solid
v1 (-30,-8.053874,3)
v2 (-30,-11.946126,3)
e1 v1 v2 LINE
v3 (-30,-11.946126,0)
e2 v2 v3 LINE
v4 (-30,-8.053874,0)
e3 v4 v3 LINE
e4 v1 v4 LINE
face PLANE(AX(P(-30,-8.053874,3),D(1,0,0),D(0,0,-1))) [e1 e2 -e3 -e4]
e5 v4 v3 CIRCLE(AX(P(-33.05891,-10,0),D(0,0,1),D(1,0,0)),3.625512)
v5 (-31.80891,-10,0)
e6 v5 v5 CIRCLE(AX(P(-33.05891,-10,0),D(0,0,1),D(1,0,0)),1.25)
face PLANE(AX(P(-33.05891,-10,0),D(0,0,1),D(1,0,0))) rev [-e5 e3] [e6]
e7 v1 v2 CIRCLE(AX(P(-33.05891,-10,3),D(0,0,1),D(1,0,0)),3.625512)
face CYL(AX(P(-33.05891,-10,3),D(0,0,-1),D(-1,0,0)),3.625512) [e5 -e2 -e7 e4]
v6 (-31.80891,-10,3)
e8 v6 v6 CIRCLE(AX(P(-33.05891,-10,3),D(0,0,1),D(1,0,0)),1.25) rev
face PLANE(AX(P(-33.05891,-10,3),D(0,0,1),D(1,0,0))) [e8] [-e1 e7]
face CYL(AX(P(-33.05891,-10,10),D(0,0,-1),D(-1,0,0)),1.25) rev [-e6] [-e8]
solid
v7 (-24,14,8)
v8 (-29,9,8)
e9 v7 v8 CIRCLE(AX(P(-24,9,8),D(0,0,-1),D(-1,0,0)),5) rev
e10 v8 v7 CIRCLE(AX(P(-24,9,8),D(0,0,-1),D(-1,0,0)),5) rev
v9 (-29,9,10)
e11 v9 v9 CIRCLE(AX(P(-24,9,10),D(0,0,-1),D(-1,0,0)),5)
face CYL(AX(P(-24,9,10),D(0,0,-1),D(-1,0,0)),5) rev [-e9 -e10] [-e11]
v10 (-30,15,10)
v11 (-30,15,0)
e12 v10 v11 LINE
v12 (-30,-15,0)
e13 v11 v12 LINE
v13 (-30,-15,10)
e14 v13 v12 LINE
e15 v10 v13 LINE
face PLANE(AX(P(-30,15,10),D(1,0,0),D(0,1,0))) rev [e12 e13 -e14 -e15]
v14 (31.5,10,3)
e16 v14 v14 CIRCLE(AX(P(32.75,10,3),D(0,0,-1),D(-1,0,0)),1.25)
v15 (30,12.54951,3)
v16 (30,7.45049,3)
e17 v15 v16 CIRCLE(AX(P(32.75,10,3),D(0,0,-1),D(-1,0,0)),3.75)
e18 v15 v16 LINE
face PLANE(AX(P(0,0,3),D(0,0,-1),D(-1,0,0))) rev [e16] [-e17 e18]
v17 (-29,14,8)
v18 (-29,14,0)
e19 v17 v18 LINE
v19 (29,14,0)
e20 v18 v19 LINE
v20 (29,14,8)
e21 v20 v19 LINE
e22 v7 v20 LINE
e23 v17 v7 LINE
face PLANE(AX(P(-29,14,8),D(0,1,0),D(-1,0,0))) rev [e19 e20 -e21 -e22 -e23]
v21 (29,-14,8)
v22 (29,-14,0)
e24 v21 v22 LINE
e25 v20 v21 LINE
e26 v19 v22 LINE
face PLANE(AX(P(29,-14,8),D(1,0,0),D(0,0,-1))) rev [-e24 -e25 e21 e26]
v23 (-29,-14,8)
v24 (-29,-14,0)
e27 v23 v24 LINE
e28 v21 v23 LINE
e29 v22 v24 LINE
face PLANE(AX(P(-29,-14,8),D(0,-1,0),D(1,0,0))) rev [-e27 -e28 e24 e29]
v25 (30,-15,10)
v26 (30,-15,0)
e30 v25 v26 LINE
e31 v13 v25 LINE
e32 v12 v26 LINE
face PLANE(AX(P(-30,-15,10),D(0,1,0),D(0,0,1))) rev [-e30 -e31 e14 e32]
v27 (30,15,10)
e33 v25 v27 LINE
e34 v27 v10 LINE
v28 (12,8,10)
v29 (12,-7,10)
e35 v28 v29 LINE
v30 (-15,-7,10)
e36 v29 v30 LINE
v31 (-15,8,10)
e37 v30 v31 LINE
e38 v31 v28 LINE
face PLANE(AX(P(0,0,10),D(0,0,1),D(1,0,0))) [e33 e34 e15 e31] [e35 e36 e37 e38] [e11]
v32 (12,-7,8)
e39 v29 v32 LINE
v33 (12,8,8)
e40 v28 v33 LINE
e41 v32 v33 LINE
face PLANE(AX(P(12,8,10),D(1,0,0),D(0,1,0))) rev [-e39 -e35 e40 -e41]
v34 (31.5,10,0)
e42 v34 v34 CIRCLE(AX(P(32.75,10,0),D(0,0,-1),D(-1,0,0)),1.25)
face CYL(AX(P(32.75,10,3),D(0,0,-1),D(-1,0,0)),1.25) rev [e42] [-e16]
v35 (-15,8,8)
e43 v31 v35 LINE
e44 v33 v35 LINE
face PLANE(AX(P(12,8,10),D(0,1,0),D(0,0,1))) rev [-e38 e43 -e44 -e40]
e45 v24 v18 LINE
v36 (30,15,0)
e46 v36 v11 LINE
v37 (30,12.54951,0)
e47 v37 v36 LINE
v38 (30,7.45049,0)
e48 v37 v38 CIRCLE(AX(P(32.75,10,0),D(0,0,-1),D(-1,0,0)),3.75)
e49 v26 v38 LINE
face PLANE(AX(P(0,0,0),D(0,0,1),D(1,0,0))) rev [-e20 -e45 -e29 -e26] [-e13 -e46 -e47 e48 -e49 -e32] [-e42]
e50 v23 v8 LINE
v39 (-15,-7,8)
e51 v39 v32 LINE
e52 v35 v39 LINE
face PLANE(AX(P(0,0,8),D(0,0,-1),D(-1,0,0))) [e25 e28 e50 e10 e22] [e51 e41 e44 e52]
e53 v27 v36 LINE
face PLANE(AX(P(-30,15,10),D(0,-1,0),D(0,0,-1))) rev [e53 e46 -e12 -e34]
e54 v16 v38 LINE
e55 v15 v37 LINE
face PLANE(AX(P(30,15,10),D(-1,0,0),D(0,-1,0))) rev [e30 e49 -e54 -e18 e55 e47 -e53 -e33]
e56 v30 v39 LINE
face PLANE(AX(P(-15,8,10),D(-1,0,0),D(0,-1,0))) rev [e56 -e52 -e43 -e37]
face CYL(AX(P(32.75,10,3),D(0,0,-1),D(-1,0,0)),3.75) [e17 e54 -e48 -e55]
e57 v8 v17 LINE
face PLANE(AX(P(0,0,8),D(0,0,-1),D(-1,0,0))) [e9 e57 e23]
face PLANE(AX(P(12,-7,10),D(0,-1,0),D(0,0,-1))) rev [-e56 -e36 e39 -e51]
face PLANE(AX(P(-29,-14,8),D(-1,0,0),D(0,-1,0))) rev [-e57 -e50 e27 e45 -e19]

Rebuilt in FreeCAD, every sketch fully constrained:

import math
import FreeCAD as App
import Part
import Sketcher

V = App.Vector
Q = App.Units.Quantity

doc = App.newDocument("Part")
params = doc.addObject("Spreadsheet::Sheet", "Params")
for row, (alias, value) in enumerate([
    ("sketch1_width", "60 mm"),
    ("sketch1_height", "30 mm"),
    ("pad1_length", "10 mm"),
    ("sketch2_diameter", "10 mm"),
    ("sketch2_width", "27 mm"),
    ("sketch2_height", "15 mm"),
    ("sketch3_diameter", "2.5 mm"),
    ("sketch3_width", "58 mm"),
    ("sketch3_height", "28 mm"),
    ("sketch3_radius", "3.75 mm"),
    ("pocket2_length", "8 mm"),
    ("sketch4_diameter", "2.5 mm"),
    ("sketch4_width", "58 mm"),
    ("sketch4_height", "28 mm"),
    ("sketch4_radius", "3.75 mm"),
    ("pad2_length", "3 mm"),
    ("sketch5_diameter", "2.5 mm"),
    ("sketch5_width", "58 mm"),
    ("sketch5_height", "28 mm"),
    ("sketch5_radius", "3.75 mm"),
    ("pocket3_length", "3 mm"),
    ("sketch6_diameter", "2.5 mm"),
    ("sketch6_radius", "3.75 mm"),
    ("pad3_length", "3 mm"),
    ("pad4_length", "3 mm"),
    ("sketch8_diameter", "2.5 mm"),
], start=1):
    params.set(f"A{row}", alias)
    params.set(f"B{row}", "=" + value)
    params.setAlias(f"B{row}", alias)

body = doc.addObject("PartDesign::Body", "Body")

sketch1 = doc.addObject("Sketcher::SketchObject", "Sketch")
body.addObject(sketch1)
sketch1.AttachmentSupport = (doc.XY_Plane, [""])
sketch1.MapMode = "FlatFace"
sketch1.addGeometry([
    Part.LineSegment(V(-30, 15, 0), V(-30, -15, 0)),
    Part.LineSegment(V(-30, -15, 0), V(30, -15, 0)),
    Part.LineSegment(V(30, -15, 0), V(30, 15, 0)),
    Part.LineSegment(V(30, 15, 0), V(-30, 15, 0)),
], False)
sketch1.addConstraint([
    Sketcher.Constraint("Coincident", 0, 2, 1, 1),
    Sketcher.Constraint("Coincident", 1, 2, 2, 1),
    Sketcher.Constraint("Coincident", 2, 2, 3, 1),
    Sketcher.Constraint("Coincident", 3, 2, 0, 1),
    Sketcher.Constraint("Vertical", 0),
    Sketcher.Constraint("Horizontal", 1),
    Sketcher.Constraint("Vertical", 2),
    Sketcher.Constraint("Horizontal", 3),
    Sketcher.Constraint("Symmetric", 0, 2, 2, 2, -1, 1),
    Sketcher.Constraint("DistanceX", 1, 1, 1, 2, Q("60 mm")),
    Sketcher.Constraint("DistanceY", 0, 2, 0, 1, Q("30 mm")),
])
sketch1.setExpression("Constraints[9]", "Params.sketch1_width")
sketch1.setExpression("Constraints[10]", "Params.sketch1_height")
pad1 = doc.addObject("PartDesign::Pad", "Pad")
body.addObject(pad1)
pad1.Profile = sketch1
pad1.setExpression("Length", "Params.pad1_length")

sketch2 = doc.addObject("Sketcher::SketchObject", "Sketch001")
body.addObject(sketch2)
sketch2.AttachmentSupport = (doc.XY_Plane, [""])
sketch2.MapMode = "FlatFace"
sketch2.addGeometry([
    Part.Circle(V(-24, 9, 0), V(0, 0, 1), 5),
    Part.LineSegment(V(12, 8, 0), V(12, -7, 0)),
    Part.LineSegment(V(12, -7, 0), V(-15, -7, 0)),
    Part.LineSegment(V(-15, -7, 0), V(-15, 8, 0)),
    Part.LineSegment(V(-15, 8, 0), V(12, 8, 0)),
], False)
sketch2.addConstraint([
    Sketcher.Constraint("Coincident", 1, 2, 2, 1),
    Sketcher.Constraint("Coincident", 2, 2, 3, 1),
    Sketcher.Constraint("Coincident", 3, 2, 4, 1),
    Sketcher.Constraint("Coincident", 4, 2, 1, 1),
    Sketcher.Constraint("Vertical", 1),
    Sketcher.Constraint("Horizontal", 2),
    Sketcher.Constraint("Vertical", 3),
    Sketcher.Constraint("Horizontal", 4),
    Sketcher.Constraint("Diameter", 0, Q("10 mm")),
    Sketcher.Constraint("DistanceX", 2, 2, 2, 1, Q("27 mm")),
    Sketcher.Constraint("DistanceY", 1, 2, 1, 1, Q("15 mm")),
    Sketcher.Constraint("DistanceX", 0, 3, -1, 1, Q("24 mm")),
    Sketcher.Constraint("DistanceY", -1, 1, 0, 3, Q("9 mm")),
    Sketcher.Constraint("DistanceX", -1, 1, 1, 2, Q("12 mm")),
    Sketcher.Constraint("DistanceY", 1, 2, -1, 1, Q("7 mm")),
])
sketch2.setExpression("Constraints[8]", "Params.sketch2_diameter")
sketch2.setExpression("Constraints[9]", "Params.sketch2_width")
sketch2.setExpression("Constraints[10]", "Params.sketch2_height")
pocket1 = doc.addObject("PartDesign::Pocket", "Pocket")
body.addObject(pocket1)
pocket1.Profile = sketch2
pocket1.Type = "ThroughAll"
pocket1.Reversed = True

sketch3 = doc.addObject("Sketcher::SketchObject", "Sketch002")
body.addObject(sketch3)
sketch3.AttachmentSupport = (doc.XY_Plane, [""])
sketch3.MapMode = "FlatFace"
sketch3.addGeometry([
    Part.LineSegment(V(30, 7.45049, 0), V(30, 12.54951, 0)),
    Part.ArcOfCircle(Part.Circle(V(32.75, 10, 0), V(0, 0, 1), 3.75), math.radians(-137.166572), math.radians(137.166572)),
    Part.Circle(V(32.75, 10, 0), V(0, 0, 1), 1.25),
    Part.LineSegment(V(29, 14, 0), V(29, -14, 0)),
    Part.LineSegment(V(29, -14, 0), V(-29, -14, 0)),
    Part.LineSegment(V(-29, -14, 0), V(-29, 14, 0)),
    Part.LineSegment(V(-29, 14, 0), V(29, 14, 0)),
    Part.LineSegment(V(-30, -8.053874, 0), V(-30, -11.946126, 0)),
    Part.ArcOfCircle(Part.Circle(V(-33.05891, -10, 0), V(0, 0, 1), 3.625512), math.radians(32.465145), math.radians(327.534855)),
    Part.Circle(V(-33.05891, -10, 0), V(0, 0, 1), 1.25),
], False)
sketch3.addConstraint([
    Sketcher.Constraint("Coincident", 0, 1, 1, 1),
    Sketcher.Constraint("Coincident", 1, 2, 0, 2),
    Sketcher.Constraint("Coincident", 3, 2, 4, 1),
    Sketcher.Constraint("Coincident", 4, 2, 5, 1),
    Sketcher.Constraint("Coincident", 5, 2, 6, 1),
    Sketcher.Constraint("Coincident", 6, 2, 3, 1),
    Sketcher.Constraint("Coincident", 7, 1, 8, 1),
    Sketcher.Constraint("Coincident", 8, 2, 7, 2),
    Sketcher.Constraint("Vertical", 0),
    Sketcher.Constraint("Vertical", 3),
    Sketcher.Constraint("Horizontal", 4),
    Sketcher.Constraint("Vertical", 5),
    Sketcher.Constraint("Horizontal", 6),
    Sketcher.Constraint("Vertical", 7),
    Sketcher.Constraint("Coincident", 2, 3, 1, 3),
    Sketcher.Constraint("Coincident", 9, 3, 8, 3),
    Sketcher.Constraint("Equal", 2, 9),
    Sketcher.Constraint("Symmetric", 3, 2, 5, 2, -1, 1),
    Sketcher.Constraint("Diameter", 2, Q("2.5 mm")),
    Sketcher.Constraint("DistanceX", 4, 2, 4, 1, Q("58 mm")),
    Sketcher.Constraint("DistanceY", 3, 2, 3, 1, Q("28 mm")),
    Sketcher.Constraint("Radius", 1, Q("3.75 mm")),
    Sketcher.Constraint("DistanceY", -1, 1, 1, 3, Q("10 mm")),
    Sketcher.Constraint("DistanceY", 8, 3, -1, 1, Q("10 mm")),
    Sketcher.Constraint("DistanceX", -1, 1, 0, 1, Q("30 mm")),
    Sketcher.Constraint("DistanceX", 7, 1, -1, 1, Q("30 mm")),
    Sketcher.Constraint("DistanceX", -1, 1, 1, 3, Q("32.75 mm")),
    Sketcher.Constraint("Radius", 8, Q("3.625512 mm")),
    Sketcher.Constraint("DistanceY", 7, 2, 7, 1, Q("3.892251 mm")),
])
sketch3.setExpression("Constraints[18]", "Params.sketch3_diameter")
sketch3.setExpression("Constraints[19]", "Params.sketch3_width")
sketch3.setExpression("Constraints[20]", "Params.sketch3_height")
sketch3.setExpression("Constraints[21]", "Params.sketch3_radius")
pocket2 = doc.addObject("PartDesign::Pocket", "Pocket001")
body.addObject(pocket2)
pocket2.Profile = sketch3
pocket2.setExpression("Length", "Params.pocket2_length")
pocket2.Reversed = True

sketch4 = doc.addObject("Sketcher::SketchObject", "Sketch003")
body.addObject(sketch4)
sketch4.AttachmentSupport = (doc.XY_Plane, [""])
sketch4.MapMode = "FlatFace"
sketch4.addGeometry([
    Part.LineSegment(V(30, 7.45049, 0), V(30, 12.54951, 0)),
    Part.ArcOfCircle(Part.Circle(V(32.75, 10, 0), V(0, 0, 1), 3.75), math.radians(-137.166572), math.radians(137.166572)),
    Part.Circle(V(32.75, 10, 0), V(0, 0, 1), 1.25),
    Part.LineSegment(V(29, 14, 0), V(29, -14, 0)),
    Part.LineSegment(V(29, -14, 0), V(-29, -14, 0)),
    Part.LineSegment(V(-29, -14, 0), V(-29, 14, 0)),
    Part.LineSegment(V(-29, 14, 0), V(29, 14, 0)),
    Part.LineSegment(V(-30, -8.053874, 0), V(-30, -11.946126, 0)),
    Part.ArcOfCircle(Part.Circle(V(-33.05891, -10, 0), V(0, 0, 1), 3.625512), math.radians(32.465145), math.radians(327.534855)),
    Part.Circle(V(-33.05891, -10, 0), V(0, 0, 1), 1.25),
], False)
sketch4.addConstraint([
    Sketcher.Constraint("Coincident", 0, 1, 1, 1),
    Sketcher.Constraint("Coincident", 1, 2, 0, 2),
    Sketcher.Constraint("Coincident", 3, 2, 4, 1),
    Sketcher.Constraint("Coincident", 4, 2, 5, 1),
    Sketcher.Constraint("Coincident", 5, 2, 6, 1),
    Sketcher.Constraint("Coincident", 6, 2, 3, 1),
    Sketcher.Constraint("Coincident", 7, 1, 8, 1),
    Sketcher.Constraint("Coincident", 8, 2, 7, 2),
    Sketcher.Constraint("Vertical", 0),
    Sketcher.Constraint("Vertical", 3),
    Sketcher.Constraint("Horizontal", 4),
    Sketcher.Constraint("Vertical", 5),
    Sketcher.Constraint("Horizontal", 6),
    Sketcher.Constraint("Vertical", 7),
    Sketcher.Constraint("Coincident", 2, 3, 1, 3),
    Sketcher.Constraint("Coincident", 9, 3, 8, 3),
    Sketcher.Constraint("Equal", 2, 9),
    Sketcher.Constraint("Symmetric", 3, 2, 5, 2, -1, 1),
    Sketcher.Constraint("Diameter", 2, Q("2.5 mm")),
    Sketcher.Constraint("DistanceX", 4, 2, 4, 1, Q("58 mm")),
    Sketcher.Constraint("DistanceY", 3, 2, 3, 1, Q("28 mm")),
    Sketcher.Constraint("Radius", 1, Q("3.75 mm")),
    Sketcher.Constraint("DistanceY", -1, 1, 1, 3, Q("10 mm")),
    Sketcher.Constraint("DistanceY", 8, 3, -1, 1, Q("10 mm")),
    Sketcher.Constraint("DistanceX", -1, 1, 0, 1, Q("30 mm")),
    Sketcher.Constraint("DistanceX", 7, 1, -1, 1, Q("30 mm")),
    Sketcher.Constraint("DistanceX", -1, 1, 1, 3, Q("32.75 mm")),
    Sketcher.Constraint("Radius", 8, Q("3.625512 mm")),
    Sketcher.Constraint("DistanceY", 7, 2, 7, 1, Q("3.892251 mm")),
])
sketch4.setExpression("Constraints[18]", "Params.sketch4_diameter")
sketch4.setExpression("Constraints[19]", "Params.sketch4_width")
sketch4.setExpression("Constraints[20]", "Params.sketch4_height")
sketch4.setExpression("Constraints[21]", "Params.sketch4_radius")
pad2 = doc.addObject("PartDesign::Pad", "Pad001")
body.addObject(pad2)
pad2.Profile = sketch4
pad2.setExpression("Length", "Params.pad2_length")

sketch5 = doc.addObject("Sketcher::SketchObject", "Sketch004")
body.addObject(sketch5)
sketch5.AttachmentSupport = (doc.XY_Plane, [""])
sketch5.MapMode = "FlatFace"
sketch5.addGeometry([
    Part.LineSegment(V(30, 7.45049, 0), V(30, 12.54951, 0)),
    Part.ArcOfCircle(Part.Circle(V(32.75, 10, 0), V(0, 0, 1), 3.75), math.radians(-137.166572), math.radians(137.166572)),
    Part.Circle(V(32.75, 10, 0), V(0, 0, 1), 1.25),
    Part.LineSegment(V(29, 14, 0), V(29, -14, 0)),
    Part.LineSegment(V(29, -14, 0), V(-29, -14, 0)),
    Part.LineSegment(V(-29, -14, 0), V(-29, 14, 0)),
    Part.LineSegment(V(-29, 14, 0), V(29, 14, 0)),
    Part.LineSegment(V(-30, -8.053874, 0), V(-30, -11.946126, 0)),
    Part.ArcOfCircle(Part.Circle(V(-33.05891, -10, 0), V(0, 0, 1), 3.625512), math.radians(32.465145), math.radians(327.534855)),
    Part.Circle(V(-33.05891, -10, 0), V(0, 0, 1), 1.25),
], False)
sketch5.addConstraint([
    Sketcher.Constraint("Coincident", 0, 1, 1, 1),
    Sketcher.Constraint("Coincident", 1, 2, 0, 2),
    Sketcher.Constraint("Coincident", 3, 2, 4, 1),
    Sketcher.Constraint("Coincident", 4, 2, 5, 1),
    Sketcher.Constraint("Coincident", 5, 2, 6, 1),
    Sketcher.Constraint("Coincident", 6, 2, 3, 1),
    Sketcher.Constraint("Coincident", 7, 1, 8, 1),
    Sketcher.Constraint("Coincident", 8, 2, 7, 2),
    Sketcher.Constraint("Vertical", 0),
    Sketcher.Constraint("Vertical", 3),
    Sketcher.Constraint("Horizontal", 4),
    Sketcher.Constraint("Vertical", 5),
    Sketcher.Constraint("Horizontal", 6),
    Sketcher.Constraint("Vertical", 7),
    Sketcher.Constraint("Coincident", 2, 3, 1, 3),
    Sketcher.Constraint("Coincident", 9, 3, 8, 3),
    Sketcher.Constraint("Equal", 2, 9),
    Sketcher.Constraint("Symmetric", 3, 2, 5, 2, -1, 1),
    Sketcher.Constraint("Diameter", 2, Q("2.5 mm")),
    Sketcher.Constraint("DistanceX", 4, 2, 4, 1, Q("58 mm")),
    Sketcher.Constraint("DistanceY", 3, 2, 3, 1, Q("28 mm")),
    Sketcher.Constraint("Radius", 1, Q("3.75 mm")),
    Sketcher.Constraint("DistanceY", -1, 1, 1, 3, Q("10 mm")),
    Sketcher.Constraint("DistanceY", 8, 3, -1, 1, Q("10 mm")),
    Sketcher.Constraint("DistanceX", -1, 1, 0, 1, Q("30 mm")),
    Sketcher.Constraint("DistanceX", 7, 1, -1, 1, Q("30 mm")),
    Sketcher.Constraint("DistanceX", -1, 1, 1, 3, Q("32.75 mm")),
    Sketcher.Constraint("Radius", 8, Q("3.625512 mm")),
    Sketcher.Constraint("DistanceY", 7, 2, 7, 1, Q("3.892251 mm")),
])
sketch5.setExpression("Constraints[18]", "Params.sketch5_diameter")
sketch5.setExpression("Constraints[19]", "Params.sketch5_width")
sketch5.setExpression("Constraints[20]", "Params.sketch5_height")
sketch5.setExpression("Constraints[21]", "Params.sketch5_radius")
pocket3 = doc.addObject("PartDesign::Pocket", "Pocket002")
body.addObject(pocket3)
pocket3.Profile = sketch5
pocket3.setExpression("Length", "Params.pocket3_length")
pocket3.Reversed = True

sketch6 = doc.addObject("Sketcher::SketchObject", "Sketch005")
body.addObject(sketch6)
sketch6.AttachmentSupport = (doc.XY_Plane, [""])
sketch6.MapMode = "FlatFace"
sketch6.addGeometry([
    Part.LineSegment(V(30, 7.45049, 0), V(30, 12.54951, 0)),
    Part.ArcOfCircle(Part.Circle(V(32.75, 10, 0), V(0, 0, 1), 3.75), math.radians(-137.166572), math.radians(137.166572)),
    Part.Circle(V(32.75, 10, 0), V(0, 0, 1), 1.25),
], False)
sketch6.addConstraint([
    Sketcher.Constraint("Coincident", 0, 1, 1, 1),
    Sketcher.Constraint("Coincident", 1, 2, 0, 2),
    Sketcher.Constraint("Vertical", 0),
    Sketcher.Constraint("Coincident", 2, 3, 1, 3),
    Sketcher.Constraint("Diameter", 2, Q("2.5 mm")),
    Sketcher.Constraint("Radius", 1, Q("3.75 mm")),
    Sketcher.Constraint("DistanceY", -1, 1, 1, 3, Q("10 mm")),
    Sketcher.Constraint("DistanceX", -1, 1, 0, 1, Q("30 mm")),
    Sketcher.Constraint("DistanceX", -1, 1, 1, 3, Q("32.75 mm")),
])
sketch6.setExpression("Constraints[4]", "Params.sketch6_diameter")
sketch6.setExpression("Constraints[5]", "Params.sketch6_radius")
pad3 = doc.addObject("PartDesign::Pad", "Pad002")
body.addObject(pad3)
pad3.Profile = sketch6
pad3.setExpression("Length", "Params.pad3_length")
body2 = doc.addObject("PartDesign::Body", "Body001")

sketch7 = doc.addObject("Sketcher::SketchObject", "Sketch006")
body2.addObject(sketch7)
sketch7.AttachmentSupport = (doc.getObject("XY_Plane001"), [""])
sketch7.MapMode = "FlatFace"
sketch7.addGeometry([
    Part.LineSegment(V(-30, -8.053874, 0), V(-30, -11.946126, 0)),
    Part.ArcOfCircle(Part.Circle(V(-33.05891, -10, 0), V(0, 0, 1), 3.625512), math.radians(32.465145), math.radians(327.534855)),
], False)
sketch7.addConstraint([
    Sketcher.Constraint("Coincident", 0, 1, 1, 1),
    Sketcher.Constraint("Coincident", 1, 2, 0, 2),
    Sketcher.Constraint("Vertical", 0),
    Sketcher.Constraint("DistanceY", 1, 3, -1, 1, Q("10 mm")),
    Sketcher.Constraint("DistanceX", 0, 1, -1, 1, Q("30 mm")),
    Sketcher.Constraint("Radius", 1, Q("3.625512 mm")),
    Sketcher.Constraint("DistanceY", 0, 2, 0, 1, Q("3.892251 mm")),
])
pad4 = doc.addObject("PartDesign::Pad", "Pad003")
body2.addObject(pad4)
pad4.Profile = sketch7
pad4.setExpression("Length", "Params.pad4_length")

sketch8 = doc.addObject("Sketcher::SketchObject", "Sketch007")
body2.addObject(sketch8)
sketch8.AttachmentSupport = (doc.getObject("XY_Plane001"), [""])
sketch8.MapMode = "FlatFace"
sketch8.addGeometry(Part.Circle(V(-33.05891, -10, 0), V(0, 0, 1), 1.25), False)
sketch8.addConstraint([
    Sketcher.Constraint("Diameter", 0, Q("2.5 mm")),
    Sketcher.Constraint("DistanceY", 0, 3, -1, 1, Q("10 mm")),
    Sketcher.Constraint("DistanceX", 0, 3, -1, 1, Q("33.05891 mm")),
])
sketch8.setExpression("Constraints[0]", "Params.sketch8_diameter")
pocket4 = doc.addObject("PartDesign::Pocket", "Pocket003")
body2.addObject(pocket4)
pocket4.Profile = sketch8
pocket4.Type = "ThroughAll"
pocket4.Reversed = True

doc.recompute()
